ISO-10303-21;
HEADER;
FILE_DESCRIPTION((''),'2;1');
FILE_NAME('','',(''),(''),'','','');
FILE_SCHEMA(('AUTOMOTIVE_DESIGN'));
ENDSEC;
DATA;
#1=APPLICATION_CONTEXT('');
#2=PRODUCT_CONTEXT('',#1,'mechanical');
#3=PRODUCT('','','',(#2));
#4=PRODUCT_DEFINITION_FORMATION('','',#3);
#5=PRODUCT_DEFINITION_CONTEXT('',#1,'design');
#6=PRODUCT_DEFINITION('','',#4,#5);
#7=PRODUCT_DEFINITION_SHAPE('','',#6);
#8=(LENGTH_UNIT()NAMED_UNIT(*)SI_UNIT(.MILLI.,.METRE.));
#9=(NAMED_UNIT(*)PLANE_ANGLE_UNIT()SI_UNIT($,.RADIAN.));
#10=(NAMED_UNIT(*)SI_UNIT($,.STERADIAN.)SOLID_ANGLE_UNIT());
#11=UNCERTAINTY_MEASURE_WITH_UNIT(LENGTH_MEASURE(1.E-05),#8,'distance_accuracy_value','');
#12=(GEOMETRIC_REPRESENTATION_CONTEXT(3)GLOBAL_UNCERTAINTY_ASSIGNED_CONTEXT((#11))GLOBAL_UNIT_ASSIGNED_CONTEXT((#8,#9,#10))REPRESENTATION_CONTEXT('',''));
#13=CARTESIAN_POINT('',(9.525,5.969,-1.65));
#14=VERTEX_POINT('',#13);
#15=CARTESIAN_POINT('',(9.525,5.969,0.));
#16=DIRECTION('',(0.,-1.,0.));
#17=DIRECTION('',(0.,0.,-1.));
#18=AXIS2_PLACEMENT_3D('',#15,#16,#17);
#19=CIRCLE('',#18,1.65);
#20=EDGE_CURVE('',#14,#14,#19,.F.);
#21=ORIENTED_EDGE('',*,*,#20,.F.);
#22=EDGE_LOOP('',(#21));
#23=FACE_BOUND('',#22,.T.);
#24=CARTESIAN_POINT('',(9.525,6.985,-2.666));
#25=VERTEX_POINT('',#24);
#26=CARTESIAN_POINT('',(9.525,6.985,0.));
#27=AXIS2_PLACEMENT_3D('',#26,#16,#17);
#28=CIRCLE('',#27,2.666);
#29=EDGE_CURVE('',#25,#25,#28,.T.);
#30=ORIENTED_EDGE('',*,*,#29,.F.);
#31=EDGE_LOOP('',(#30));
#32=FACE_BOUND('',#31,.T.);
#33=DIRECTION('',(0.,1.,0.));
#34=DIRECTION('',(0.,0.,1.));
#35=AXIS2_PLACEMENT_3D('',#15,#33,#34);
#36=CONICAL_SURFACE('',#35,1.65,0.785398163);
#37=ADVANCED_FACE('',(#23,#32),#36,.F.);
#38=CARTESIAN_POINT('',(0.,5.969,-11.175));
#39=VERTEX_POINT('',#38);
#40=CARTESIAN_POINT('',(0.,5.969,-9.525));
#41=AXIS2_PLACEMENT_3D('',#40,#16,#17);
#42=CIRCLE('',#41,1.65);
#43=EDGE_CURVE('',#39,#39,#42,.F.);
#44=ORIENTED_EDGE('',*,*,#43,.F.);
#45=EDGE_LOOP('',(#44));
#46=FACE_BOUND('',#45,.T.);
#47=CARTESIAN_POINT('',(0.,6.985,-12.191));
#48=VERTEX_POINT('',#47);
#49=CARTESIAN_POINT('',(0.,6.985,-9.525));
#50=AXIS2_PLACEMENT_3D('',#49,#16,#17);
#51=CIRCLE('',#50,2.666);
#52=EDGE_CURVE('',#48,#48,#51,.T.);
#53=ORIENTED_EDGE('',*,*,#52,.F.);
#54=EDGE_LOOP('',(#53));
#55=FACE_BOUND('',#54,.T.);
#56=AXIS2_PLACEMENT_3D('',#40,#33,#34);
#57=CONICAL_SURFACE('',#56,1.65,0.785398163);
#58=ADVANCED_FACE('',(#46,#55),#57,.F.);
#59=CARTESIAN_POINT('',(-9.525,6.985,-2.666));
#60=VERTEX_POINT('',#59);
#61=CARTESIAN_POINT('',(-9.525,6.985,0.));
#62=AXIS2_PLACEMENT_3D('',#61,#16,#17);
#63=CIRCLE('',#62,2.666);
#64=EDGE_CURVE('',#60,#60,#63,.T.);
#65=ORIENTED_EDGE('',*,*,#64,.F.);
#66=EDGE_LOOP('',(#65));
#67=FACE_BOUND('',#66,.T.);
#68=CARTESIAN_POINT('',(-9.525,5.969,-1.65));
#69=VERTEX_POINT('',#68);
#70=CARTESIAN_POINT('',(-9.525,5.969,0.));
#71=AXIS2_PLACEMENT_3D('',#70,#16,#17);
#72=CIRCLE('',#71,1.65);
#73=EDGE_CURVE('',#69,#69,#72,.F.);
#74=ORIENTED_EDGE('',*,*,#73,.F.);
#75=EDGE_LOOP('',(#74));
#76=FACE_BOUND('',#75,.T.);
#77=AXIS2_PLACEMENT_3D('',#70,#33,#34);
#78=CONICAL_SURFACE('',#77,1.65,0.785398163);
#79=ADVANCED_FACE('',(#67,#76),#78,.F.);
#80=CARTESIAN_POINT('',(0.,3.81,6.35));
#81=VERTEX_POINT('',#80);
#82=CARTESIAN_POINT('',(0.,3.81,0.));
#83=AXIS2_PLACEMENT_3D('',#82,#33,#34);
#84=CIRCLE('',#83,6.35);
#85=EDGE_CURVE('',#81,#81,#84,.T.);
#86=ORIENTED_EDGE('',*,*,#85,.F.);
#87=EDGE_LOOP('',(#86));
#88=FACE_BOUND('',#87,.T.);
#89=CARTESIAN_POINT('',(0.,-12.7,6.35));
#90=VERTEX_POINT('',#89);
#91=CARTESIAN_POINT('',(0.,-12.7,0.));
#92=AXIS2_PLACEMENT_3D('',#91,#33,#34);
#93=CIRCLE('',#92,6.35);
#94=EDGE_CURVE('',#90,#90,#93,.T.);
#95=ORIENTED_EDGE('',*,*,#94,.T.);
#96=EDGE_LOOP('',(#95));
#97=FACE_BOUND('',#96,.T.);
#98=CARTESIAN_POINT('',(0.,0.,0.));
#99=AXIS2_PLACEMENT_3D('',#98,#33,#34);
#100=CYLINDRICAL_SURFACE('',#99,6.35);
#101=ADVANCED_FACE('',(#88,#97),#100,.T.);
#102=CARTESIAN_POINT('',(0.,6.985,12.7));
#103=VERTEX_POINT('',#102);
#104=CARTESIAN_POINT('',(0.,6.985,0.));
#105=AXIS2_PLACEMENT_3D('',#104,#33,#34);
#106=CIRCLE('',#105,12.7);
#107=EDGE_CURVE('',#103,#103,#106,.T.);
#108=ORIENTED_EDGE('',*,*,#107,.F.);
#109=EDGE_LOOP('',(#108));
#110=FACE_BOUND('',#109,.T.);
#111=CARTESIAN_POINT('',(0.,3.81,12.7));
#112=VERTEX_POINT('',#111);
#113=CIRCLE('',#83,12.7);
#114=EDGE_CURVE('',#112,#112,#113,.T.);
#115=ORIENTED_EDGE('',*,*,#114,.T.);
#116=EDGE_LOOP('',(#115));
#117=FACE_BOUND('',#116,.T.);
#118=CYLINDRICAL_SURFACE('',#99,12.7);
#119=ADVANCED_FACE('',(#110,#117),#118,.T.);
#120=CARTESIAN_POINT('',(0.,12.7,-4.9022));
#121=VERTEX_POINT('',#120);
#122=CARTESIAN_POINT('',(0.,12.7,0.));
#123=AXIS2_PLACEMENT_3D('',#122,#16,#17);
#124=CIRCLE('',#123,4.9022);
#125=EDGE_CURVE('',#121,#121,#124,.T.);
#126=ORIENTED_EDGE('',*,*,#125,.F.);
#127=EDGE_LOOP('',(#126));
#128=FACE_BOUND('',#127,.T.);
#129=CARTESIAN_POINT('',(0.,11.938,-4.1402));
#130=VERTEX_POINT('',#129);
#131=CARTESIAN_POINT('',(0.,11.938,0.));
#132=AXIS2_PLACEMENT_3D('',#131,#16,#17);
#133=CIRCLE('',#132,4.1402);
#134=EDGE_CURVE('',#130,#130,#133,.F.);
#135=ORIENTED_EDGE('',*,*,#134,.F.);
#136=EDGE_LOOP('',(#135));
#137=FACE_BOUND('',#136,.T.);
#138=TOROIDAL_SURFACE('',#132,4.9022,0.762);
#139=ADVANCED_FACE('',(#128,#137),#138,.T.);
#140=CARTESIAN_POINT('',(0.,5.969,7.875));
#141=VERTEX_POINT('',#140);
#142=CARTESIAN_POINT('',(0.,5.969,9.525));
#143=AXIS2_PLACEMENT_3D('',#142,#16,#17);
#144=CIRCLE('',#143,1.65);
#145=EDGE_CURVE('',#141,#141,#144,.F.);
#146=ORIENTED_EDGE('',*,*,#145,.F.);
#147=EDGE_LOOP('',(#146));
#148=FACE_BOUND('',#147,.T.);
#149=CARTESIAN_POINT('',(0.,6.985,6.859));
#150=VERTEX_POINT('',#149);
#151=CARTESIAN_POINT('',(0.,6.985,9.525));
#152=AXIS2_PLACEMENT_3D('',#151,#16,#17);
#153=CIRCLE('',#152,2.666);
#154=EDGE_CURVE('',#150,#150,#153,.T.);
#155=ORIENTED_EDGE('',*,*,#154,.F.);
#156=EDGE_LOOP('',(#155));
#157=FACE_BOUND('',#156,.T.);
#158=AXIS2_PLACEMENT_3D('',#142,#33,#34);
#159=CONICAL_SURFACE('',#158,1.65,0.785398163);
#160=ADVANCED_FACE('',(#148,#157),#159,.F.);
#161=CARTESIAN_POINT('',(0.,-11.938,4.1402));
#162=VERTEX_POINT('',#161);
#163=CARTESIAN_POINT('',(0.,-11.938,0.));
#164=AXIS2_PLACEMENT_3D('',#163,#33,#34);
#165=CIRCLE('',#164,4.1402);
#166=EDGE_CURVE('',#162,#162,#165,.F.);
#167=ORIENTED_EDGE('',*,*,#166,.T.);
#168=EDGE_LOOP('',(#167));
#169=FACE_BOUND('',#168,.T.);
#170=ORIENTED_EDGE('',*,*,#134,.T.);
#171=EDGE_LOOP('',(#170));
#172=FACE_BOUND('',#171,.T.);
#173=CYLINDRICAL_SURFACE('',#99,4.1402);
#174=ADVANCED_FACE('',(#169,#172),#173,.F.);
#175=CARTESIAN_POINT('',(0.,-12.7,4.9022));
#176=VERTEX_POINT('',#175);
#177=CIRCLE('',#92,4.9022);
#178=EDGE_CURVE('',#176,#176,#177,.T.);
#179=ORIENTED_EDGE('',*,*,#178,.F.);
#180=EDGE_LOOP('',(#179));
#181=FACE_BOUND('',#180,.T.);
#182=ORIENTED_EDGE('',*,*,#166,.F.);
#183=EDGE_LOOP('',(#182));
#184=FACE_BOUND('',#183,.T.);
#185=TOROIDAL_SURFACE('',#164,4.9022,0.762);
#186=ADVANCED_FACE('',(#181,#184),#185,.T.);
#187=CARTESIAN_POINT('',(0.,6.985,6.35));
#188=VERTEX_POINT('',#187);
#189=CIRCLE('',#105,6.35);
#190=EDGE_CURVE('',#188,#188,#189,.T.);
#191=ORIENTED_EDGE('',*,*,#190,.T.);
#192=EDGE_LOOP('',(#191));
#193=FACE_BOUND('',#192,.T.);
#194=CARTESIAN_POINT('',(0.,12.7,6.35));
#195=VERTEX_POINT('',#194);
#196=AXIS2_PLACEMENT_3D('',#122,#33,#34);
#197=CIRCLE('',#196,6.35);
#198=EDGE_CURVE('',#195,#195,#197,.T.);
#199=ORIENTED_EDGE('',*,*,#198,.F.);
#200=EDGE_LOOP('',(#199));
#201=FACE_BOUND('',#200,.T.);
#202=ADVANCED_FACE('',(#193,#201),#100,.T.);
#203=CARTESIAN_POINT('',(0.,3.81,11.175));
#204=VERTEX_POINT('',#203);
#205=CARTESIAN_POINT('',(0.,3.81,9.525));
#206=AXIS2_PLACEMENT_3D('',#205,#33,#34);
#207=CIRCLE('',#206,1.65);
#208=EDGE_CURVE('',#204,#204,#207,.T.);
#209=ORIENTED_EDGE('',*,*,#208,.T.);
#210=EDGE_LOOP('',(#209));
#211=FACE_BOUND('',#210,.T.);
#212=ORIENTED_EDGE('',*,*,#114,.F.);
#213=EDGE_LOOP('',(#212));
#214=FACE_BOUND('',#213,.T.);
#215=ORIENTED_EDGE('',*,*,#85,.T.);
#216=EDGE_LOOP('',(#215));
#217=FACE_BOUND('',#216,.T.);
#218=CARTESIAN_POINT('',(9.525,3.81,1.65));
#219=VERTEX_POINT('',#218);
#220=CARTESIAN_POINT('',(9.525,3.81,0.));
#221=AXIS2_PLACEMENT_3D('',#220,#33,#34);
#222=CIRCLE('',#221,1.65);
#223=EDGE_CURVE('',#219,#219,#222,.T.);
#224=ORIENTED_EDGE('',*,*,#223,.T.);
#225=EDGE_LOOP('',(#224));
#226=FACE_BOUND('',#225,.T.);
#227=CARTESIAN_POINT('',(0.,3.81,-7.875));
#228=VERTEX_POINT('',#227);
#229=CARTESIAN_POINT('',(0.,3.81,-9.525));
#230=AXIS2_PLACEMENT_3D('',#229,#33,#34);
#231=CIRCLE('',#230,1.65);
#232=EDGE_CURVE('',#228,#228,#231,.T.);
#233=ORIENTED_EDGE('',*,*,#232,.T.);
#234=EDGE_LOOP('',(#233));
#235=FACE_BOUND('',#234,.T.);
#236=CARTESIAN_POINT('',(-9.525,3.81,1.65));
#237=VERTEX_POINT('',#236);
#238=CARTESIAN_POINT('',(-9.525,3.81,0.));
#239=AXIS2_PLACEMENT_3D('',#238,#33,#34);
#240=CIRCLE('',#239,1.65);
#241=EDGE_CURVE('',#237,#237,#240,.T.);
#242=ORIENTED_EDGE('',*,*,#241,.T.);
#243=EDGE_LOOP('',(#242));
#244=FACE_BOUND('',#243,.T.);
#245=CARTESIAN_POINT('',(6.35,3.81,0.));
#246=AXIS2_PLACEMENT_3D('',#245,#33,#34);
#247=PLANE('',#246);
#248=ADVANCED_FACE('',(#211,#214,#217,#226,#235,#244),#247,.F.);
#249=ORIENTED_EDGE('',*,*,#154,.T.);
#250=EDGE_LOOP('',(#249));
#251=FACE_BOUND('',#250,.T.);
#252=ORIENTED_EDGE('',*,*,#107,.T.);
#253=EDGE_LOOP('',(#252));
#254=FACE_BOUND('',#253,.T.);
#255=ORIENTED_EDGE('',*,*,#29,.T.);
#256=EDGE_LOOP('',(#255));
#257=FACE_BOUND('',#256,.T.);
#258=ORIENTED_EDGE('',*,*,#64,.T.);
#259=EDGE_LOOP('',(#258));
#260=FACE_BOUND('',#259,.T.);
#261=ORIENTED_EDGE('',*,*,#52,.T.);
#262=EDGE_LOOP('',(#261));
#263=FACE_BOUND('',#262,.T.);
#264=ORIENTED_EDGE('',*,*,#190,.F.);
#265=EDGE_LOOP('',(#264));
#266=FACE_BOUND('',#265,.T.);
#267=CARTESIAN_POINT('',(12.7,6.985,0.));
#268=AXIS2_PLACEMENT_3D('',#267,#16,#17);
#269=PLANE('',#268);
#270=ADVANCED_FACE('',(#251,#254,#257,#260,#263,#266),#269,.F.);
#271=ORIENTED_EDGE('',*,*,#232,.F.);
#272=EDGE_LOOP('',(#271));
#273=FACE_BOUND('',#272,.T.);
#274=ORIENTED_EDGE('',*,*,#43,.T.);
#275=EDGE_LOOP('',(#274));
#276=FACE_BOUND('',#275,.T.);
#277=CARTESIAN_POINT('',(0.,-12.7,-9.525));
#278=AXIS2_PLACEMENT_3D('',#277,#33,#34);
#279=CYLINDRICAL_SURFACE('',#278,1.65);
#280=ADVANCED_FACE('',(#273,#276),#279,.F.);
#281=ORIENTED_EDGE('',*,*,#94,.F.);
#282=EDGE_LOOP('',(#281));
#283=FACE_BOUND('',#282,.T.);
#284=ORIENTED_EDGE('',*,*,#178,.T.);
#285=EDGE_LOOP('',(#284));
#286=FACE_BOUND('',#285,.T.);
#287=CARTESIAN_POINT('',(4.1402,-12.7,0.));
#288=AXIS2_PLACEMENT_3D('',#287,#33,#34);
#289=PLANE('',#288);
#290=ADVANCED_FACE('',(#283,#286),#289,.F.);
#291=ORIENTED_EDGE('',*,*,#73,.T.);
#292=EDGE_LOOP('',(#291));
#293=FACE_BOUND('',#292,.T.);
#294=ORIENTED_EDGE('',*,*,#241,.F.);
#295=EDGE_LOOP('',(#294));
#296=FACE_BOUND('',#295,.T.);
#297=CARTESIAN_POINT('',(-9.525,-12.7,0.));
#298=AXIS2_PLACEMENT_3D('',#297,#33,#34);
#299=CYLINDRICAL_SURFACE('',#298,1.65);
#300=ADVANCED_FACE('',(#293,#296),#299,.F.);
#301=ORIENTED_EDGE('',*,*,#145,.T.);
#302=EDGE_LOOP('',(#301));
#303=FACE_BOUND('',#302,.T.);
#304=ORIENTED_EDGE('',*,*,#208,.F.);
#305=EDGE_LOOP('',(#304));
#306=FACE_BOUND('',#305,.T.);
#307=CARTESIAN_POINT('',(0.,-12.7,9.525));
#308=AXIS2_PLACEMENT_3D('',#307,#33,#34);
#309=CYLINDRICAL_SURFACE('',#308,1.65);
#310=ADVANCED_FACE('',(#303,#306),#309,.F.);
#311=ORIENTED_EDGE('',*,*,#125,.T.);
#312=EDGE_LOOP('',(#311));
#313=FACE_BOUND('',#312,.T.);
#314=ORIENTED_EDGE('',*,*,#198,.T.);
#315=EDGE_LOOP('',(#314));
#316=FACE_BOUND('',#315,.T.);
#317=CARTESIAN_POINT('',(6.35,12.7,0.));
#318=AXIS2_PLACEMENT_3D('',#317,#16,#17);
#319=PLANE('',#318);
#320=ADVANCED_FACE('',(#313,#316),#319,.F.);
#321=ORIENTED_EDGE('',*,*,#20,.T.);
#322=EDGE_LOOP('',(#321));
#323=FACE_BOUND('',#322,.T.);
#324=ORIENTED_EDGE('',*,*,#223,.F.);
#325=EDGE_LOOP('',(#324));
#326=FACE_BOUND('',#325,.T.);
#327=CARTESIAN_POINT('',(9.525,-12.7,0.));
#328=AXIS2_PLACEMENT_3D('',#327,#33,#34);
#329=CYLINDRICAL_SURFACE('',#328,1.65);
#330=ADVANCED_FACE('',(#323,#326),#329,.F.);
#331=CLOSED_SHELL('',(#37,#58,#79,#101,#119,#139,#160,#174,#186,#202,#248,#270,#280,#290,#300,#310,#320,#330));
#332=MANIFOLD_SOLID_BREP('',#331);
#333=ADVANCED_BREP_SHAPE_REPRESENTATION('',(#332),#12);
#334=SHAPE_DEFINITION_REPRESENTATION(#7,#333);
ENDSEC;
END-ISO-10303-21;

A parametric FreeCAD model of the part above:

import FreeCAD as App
import Part
import Sketcher
from FreeCAD import Vector
Q = App.Units.Quantity


def edges_at(feature, points):
    """Names of the edges that pass closest to the given points."""
    edges = feature.Shape.Edges
    near = lambda p: min(range(len(edges)), key=lambda i: edges[i].distToShape(Part.Vertex(*p))[0])
    return sorted({f"Edge{near(p) + 1}" for p in points})

doc = App.newDocument("Part")
body = doc.addObject("PartDesign::Body", "Body")

sketch1 = body.newObject("Sketcher::SketchObject", "Sketch")
sketch1.AttachmentSupport = (doc.getObject("XY_Plane"), [""])
sketch1.MapMode = "FlatFace"
sketch1.addGeometry(Part.LineSegment(Vector(4.1, 12.7, 0), Vector(4.1, -12.7, 0)), False)
sketch1.addGeometry(Part.LineSegment(Vector(4.1, -12.7, 0), Vector(6.3, -12.7, 0)), False)
sketch1.addGeometry(Part.LineSegment(Vector(6.3, -12.7, 0), Vector(6.3, 3.8, 0)), False)
sketch1.addGeometry(Part.LineSegment(Vector(6.3, 3.8, 0), Vector(12.7, 3.8, 0)), False)
sketch1.addGeometry(Part.LineSegment(Vector(12.7, 3.8, 0), Vector(12.7, 7, 0)), False)
sketch1.addGeometry(Part.LineSegment(Vector(12.7, 7, 0), Vector(6.3, 7, 0)), False)
sketch1.addGeometry(Part.LineSegment(Vector(6.3, 7, 0), Vector(6.3, 12.7, 0)), False)
sketch1.addGeometry(Part.LineSegment(Vector(6.3, 12.7, 0), Vector(4.1, 12.7, 0)), False)
sketch1.addConstraint(Sketcher.Constraint("Coincident", 0, 2, 1, 1))
sketch1.addConstraint(Sketcher.Constraint("Coincident", 1, 2, 2, 1))
sketch1.addConstraint(Sketcher.Constraint("Coincident", 2, 2, 3, 1))
sketch1.addConstraint(Sketcher.Constraint("Coincident", 3, 2, 4, 1))
sketch1.addConstraint(Sketcher.Constraint("Coincident", 4, 2, 5, 1))
sketch1.addConstraint(Sketcher.Constraint("Coincident", 5, 2, 6, 1))
sketch1.addConstraint(Sketcher.Constraint("Coincident", 6, 2, 7, 1))
sketch1.addConstraint(Sketcher.Constraint("Coincident", 7, 2, 0, 1))
sketch1.addConstraint(Sketcher.Constraint("Vertical", 0))
sketch1.addConstraint(Sketcher.Constraint("Horizontal", 1))
sketch1.addConstraint(Sketcher.Constraint("Vertical", 2))
sketch1.addConstraint(Sketcher.Constraint("Horizontal", 3))
sketch1.addConstraint(Sketcher.Constraint("Vertical", 4))
sketch1.addConstraint(Sketcher.Constraint("Horizontal", 5))
sketch1.addConstraint(Sketcher.Constraint("Vertical", 6))
sketch1.addConstraint(Sketcher.Constraint("Horizontal", 7))
sketch1.addConstraint(Sketcher.Constraint("Symmetric", 1, 2, 6, 2, -1))
sketch1.addConstraint(Sketcher.Constraint("DistanceY", 0, 2, 0, 1, Q("1 in")))
sketch1.addConstraint(Sketcher.Constraint("DistanceX", 3, 1, 3, 2, Q("0.25 in")))
sketch1.addConstraint(Sketcher.Constraint("DistanceY", 2, 1, 2, 2, Q("0.65 in")))
sketch1.addConstraint(Sketcher.Constraint("DistanceX", -1, 1, 3, 2, Q("0.5 in")))
sketch1.addConstraint(Sketcher.Constraint("DistanceX", 1, 1, 1, 2, Q("0.087 in")))
sketch1.addConstraint(Sketcher.Constraint("DistanceY", 4, 1, 4, 2, Q("0.125 in")))
revolution = body.newObject("PartDesign::Revolution", "Revolution")
revolution.Profile = sketch1
revolution.ReferenceAxis = (sketch1, ["V_Axis"])
revolution.Angle = 360

sketch2 = body.newObject("Sketcher::SketchObject", "Sketch001")
sketch2.AttachmentSupport = (doc.getObject("XZ_Plane"), [""])
sketch2.MapMode = "FlatFace"
sketch2.AttachmentOffset = App.Placement(Vector(0, 0, -0.275 * 25.4), App.Rotation())
sketch2.addGeometry(Part.Circle(Vector(0, -9.5, 0), Vector(0, 0, 1), 1.6), False)
sketch2.addConstraint(Sketcher.Constraint("PointOnObject", 0, 3, -2))
sketch2.addConstraint(Sketcher.Constraint("Diameter", 0, Q("3.3 mm")))
sketch2.addConstraint(Sketcher.Constraint("DistanceY", 0, 3, -1, 1, Q("0.375 in")))
pocket1 = body.newObject("PartDesign::Pocket", "Pocket")
pocket1.Profile = sketch2
pocket1.Type = "ThroughAll"
pocket1.Reversed = True
doc.recompute()

chamfer = body.newObject("PartDesign::Chamfer", "Chamfer")
chamfer.Base = (pocket1, edges_at(pocket1, [(0, 6.985, -11.175)]))
chamfer.Size = Q("0.04 in")
doc.recompute()

polarpattern = body.newObject("PartDesign::PolarPattern", "PolarPattern")
polarpattern.Originals = [pocket1]
polarpattern.Axis = (doc.getObject("Y_Axis"), [""])
polarpattern.Angle = 360
polarpattern.Occurrences = 4
body.Tip = polarpattern
doc.recompute()

chamfer2 = body.newObject("PartDesign::Chamfer", "Chamfer001")
chamfer2.Base = (polarpattern, edges_at(polarpattern, [(-11.175, 6.985, 0), (0, 6.985, 11.175), (11.175, 6.985, 0)]))
chamfer2.Size = Q("0.04 in")
doc.recompute()

fillet = body.newObject("PartDesign::Fillet", "Fillet")
fillet.Base = (chamfer2, edges_at(chamfer2, [(0, 12.7, -4.14), (0, -12.7, -4.14)]))
fillet.Radius = Q("0.03 in")

doc.recompute()
